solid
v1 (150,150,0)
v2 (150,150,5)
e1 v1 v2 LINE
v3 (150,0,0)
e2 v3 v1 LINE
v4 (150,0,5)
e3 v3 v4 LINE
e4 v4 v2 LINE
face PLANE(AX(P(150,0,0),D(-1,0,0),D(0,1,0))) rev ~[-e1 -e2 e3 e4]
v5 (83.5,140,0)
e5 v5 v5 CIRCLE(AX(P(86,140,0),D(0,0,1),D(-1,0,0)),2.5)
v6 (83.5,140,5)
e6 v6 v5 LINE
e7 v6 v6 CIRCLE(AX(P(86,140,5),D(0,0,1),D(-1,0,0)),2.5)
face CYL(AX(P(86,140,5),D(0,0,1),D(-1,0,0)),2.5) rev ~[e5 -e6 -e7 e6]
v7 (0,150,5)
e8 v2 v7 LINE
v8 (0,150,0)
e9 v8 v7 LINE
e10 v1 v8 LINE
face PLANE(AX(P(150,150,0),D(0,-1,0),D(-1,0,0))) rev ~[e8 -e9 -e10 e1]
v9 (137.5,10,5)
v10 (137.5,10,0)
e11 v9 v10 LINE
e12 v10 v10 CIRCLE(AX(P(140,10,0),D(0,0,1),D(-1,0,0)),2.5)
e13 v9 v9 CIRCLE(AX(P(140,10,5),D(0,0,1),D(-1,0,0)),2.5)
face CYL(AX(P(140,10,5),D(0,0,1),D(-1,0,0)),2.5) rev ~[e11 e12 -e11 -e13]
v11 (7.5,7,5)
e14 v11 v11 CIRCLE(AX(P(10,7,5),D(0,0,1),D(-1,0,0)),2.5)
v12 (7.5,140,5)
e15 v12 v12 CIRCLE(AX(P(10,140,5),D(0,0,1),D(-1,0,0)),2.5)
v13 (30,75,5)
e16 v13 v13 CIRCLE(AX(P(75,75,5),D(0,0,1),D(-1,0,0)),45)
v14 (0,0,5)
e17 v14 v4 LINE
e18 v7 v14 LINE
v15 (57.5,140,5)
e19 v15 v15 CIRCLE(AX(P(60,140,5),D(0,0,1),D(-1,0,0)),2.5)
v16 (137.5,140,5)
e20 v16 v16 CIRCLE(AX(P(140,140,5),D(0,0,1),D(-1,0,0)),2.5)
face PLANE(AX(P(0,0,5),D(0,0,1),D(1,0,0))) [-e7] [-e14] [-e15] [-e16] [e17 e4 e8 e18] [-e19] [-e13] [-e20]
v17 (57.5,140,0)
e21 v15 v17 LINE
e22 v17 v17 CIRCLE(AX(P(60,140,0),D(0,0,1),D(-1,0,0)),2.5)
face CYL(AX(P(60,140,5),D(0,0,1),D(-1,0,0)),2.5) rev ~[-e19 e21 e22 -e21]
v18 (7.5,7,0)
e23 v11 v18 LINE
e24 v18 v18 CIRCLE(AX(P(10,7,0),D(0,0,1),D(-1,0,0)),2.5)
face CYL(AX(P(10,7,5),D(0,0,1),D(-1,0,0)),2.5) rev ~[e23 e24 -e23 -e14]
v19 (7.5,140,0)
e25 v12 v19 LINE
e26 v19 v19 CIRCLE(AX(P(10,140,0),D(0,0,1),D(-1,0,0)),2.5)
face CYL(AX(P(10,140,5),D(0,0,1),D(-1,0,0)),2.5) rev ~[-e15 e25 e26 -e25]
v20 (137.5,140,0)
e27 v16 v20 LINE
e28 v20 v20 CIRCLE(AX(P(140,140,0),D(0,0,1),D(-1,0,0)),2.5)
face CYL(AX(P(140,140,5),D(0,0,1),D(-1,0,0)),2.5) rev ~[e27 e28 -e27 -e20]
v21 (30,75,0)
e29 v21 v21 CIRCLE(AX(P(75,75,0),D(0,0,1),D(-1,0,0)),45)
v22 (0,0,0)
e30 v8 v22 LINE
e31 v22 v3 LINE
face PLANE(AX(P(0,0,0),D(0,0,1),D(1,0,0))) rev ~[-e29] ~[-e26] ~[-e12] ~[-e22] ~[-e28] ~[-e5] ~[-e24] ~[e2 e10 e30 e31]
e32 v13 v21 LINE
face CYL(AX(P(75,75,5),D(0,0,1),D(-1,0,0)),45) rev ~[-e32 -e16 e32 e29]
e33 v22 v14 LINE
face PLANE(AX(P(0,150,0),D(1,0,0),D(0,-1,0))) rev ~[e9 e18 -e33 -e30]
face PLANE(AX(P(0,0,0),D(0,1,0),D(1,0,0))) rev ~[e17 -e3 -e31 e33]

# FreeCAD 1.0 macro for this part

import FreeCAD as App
import Part
import Sketcher


def add_polygon(sketch, points):
    """Adds a closed chain of lines whose ends are joined by coincident constraints."""
    first, n = sketch.GeometryCount, len(points)
    for a, b in zip(points, points[1:] + points[:1]):
        sketch.addGeometry(Part.LineSegment(App.Vector(*a, 0), App.Vector(*b, 0)), False)
    for i in range(n):
        sketch.addConstraint(Sketcher.Constraint("Coincident", first + i, 2, first + (i + 1) % n, 1))

doc = App.newDocument("Part")
body = doc.addObject("PartDesign::Body", "Body")

# Sketch on XY plane
sketch1 = body.newObject("Sketcher::SketchObject", "Sketch")
sketch1.AttachmentSupport = (doc.getObject("XY_Plane"), [""])
sketch1.MapMode = "FlatFace"
add_polygon(sketch1, [(0, 150), (0, 0), (150, 0), (150, 150)])  # lines 0-3
sketch1.addConstraint(Sketcher.Constraint("Vertical", 0))
sketch1.addConstraint(Sketcher.Constraint("Horizontal", 1))
sketch1.addConstraint(Sketcher.Constraint("Vertical", 2))
sketch1.addConstraint(Sketcher.Constraint("Horizontal", 3))
sketch1.addConstraint(Sketcher.Constraint("Coincident", 0, 2, -1, 1))
sketch1.addConstraint(Sketcher.Constraint("Equal", 3, 0))
sketch1.addConstraint(Sketcher.Constraint("DistanceX", 1, 1, 1, 2, 150.0))
pad1 = body.newObject("PartDesign::Pad", "Pad")
pad1.Profile = sketch1
pad1.Length = 5

# Sketch on XY plane
sketch2 = body.newObject("Sketcher::SketchObject", "Sketch001")
sketch2.AttachmentSupport = (doc.getObject("XY_Plane"), [""])
sketch2.MapMode = "FlatFace"
sketch2.AttachmentOffset = App.Placement(App.Vector(0, 0, 5), App.Rotation())
sketch2.addGeometry(Part.Circle(App.Vector(75, 75, 0), App.Vector(0, 0, 1), 45), False)
sketch2.addGeometry(Part.Circle(App.Vector(10, 140, 0), App.Vector(0, 0, 1), 2.5), False)
sketch2.addGeometry(Part.Circle(App.Vector(140, 140, 0), App.Vector(0, 0, 1), 2.5), False)
sketch2.addGeometry(Part.Circle(App.Vector(10, 7, 0), App.Vector(0, 0, 1), 2.5), False)
sketch2.addGeometry(Part.Circle(App.Vector(140, 10, 0), App.Vector(0, 0, 1), 2.5), False)
sketch2.addGeometry(Part.Circle(App.Vector(60, 140, 0), App.Vector(0, 0, 1), 2.5), False)
sketch2.addGeometry(Part.Circle(App.Vector(86, 140, 0), App.Vector(0, 0, 1), 2.5), False)
sketch2.addConstraint(Sketcher.Constraint("Equal", 1, 2))
sketch2.addConstraint(Sketcher.Constraint("Equal", 2, 3))
sketch2.addConstraint(Sketcher.Constraint("Equal", 3, 4))
sketch2.addConstraint(Sketcher.Constraint("Equal", 4, 5))
sketch2.addConstraint(Sketcher.Constraint("Equal", 5, 6))
sketch2.addConstraint(Sketcher.Constraint("Horizontal", 1, 3, 2, 3))
sketch2.addConstraint(Sketcher.Constraint("Horizontal", 2, 3, 5, 3))
sketch2.addConstraint(Sketcher.Constraint("Horizontal", 5, 3, 6, 3))
sketch2.addConstraint(Sketcher.Constraint("Vertical", 1, 3, 3, 3))
sketch2.addConstraint(Sketcher.Constraint("Vertical", 2, 3, 4, 3))
sketch2.addConstraint(Sketcher.Constraint("Diameter", 0, 90.0))
sketch2.addConstraint(Sketcher.Constraint("Diameter", 1, 5.0))
sketch2.addConstraint(Sketcher.Constraint("DistanceX", -1, 1, 0, 3, 75.0))
sketch2.addConstraint(Sketcher.Constraint("DistanceY", -1, 1, 0, 3, 75.0))
sketch2.addConstraint(Sketcher.Constraint("DistanceX", 1, 3, 2, 3, 130.0))
sketch2.addConstraint(Sketcher.Constraint("DistanceY", 3, 3, 1, 3, 133.0))
sketch2.addConstraint(Sketcher.Constraint("DistanceY", 4, 3, 2, 3, 130.0))
sketch2.addConstraint(Sketcher.Constraint("DistanceX", 5, 3, 6, 3, 26.0))
sketch2.addConstraint(Sketcher.Constraint("DistanceX", -1, 1, 1, 3, 10.0))
sketch2.addConstraint(Sketcher.Constraint("DistanceY", -1, 1, 1, 3, 140.0))
sketch2.addConstraint(Sketcher.Constraint("DistanceX", -1, 1, 5, 3, 60.0))
pocket1 = body.newObject("PartDesign::Pocket", "Pocket")
pocket1.Profile = sketch2
pocket1.Length = 5

doc.recompute()
